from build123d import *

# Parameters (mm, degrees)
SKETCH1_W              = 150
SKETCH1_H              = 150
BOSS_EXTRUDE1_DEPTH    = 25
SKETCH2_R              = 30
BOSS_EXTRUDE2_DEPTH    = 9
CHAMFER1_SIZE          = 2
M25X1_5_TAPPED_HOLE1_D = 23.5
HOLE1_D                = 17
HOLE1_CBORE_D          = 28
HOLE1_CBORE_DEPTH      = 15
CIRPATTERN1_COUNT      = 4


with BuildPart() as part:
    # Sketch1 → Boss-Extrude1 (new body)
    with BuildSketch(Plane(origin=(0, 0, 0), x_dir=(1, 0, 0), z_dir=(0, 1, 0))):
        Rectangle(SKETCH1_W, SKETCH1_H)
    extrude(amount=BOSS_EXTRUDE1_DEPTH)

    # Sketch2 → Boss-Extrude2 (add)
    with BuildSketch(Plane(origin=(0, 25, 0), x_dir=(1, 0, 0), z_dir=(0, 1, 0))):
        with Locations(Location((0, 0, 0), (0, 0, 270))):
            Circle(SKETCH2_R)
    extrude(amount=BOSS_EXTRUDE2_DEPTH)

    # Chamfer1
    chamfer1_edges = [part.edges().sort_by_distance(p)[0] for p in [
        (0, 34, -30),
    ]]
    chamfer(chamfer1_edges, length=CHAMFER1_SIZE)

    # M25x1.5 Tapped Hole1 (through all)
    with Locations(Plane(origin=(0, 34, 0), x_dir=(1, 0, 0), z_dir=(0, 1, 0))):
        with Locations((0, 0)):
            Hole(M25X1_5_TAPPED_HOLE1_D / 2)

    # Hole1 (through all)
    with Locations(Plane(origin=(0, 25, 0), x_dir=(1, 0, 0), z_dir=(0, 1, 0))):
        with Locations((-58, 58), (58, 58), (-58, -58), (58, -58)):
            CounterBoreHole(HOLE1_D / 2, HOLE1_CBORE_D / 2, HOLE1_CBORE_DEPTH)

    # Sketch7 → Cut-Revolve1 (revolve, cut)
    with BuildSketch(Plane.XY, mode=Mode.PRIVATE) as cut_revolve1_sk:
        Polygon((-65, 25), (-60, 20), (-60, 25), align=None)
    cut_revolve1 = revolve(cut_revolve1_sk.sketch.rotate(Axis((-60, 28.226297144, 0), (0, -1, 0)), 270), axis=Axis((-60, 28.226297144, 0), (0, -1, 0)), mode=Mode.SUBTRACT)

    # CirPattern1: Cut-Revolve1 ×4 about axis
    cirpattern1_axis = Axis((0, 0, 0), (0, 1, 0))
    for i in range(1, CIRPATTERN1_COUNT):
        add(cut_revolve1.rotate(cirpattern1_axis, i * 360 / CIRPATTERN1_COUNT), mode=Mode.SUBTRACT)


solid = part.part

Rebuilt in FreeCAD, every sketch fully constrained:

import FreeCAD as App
import Part
import Sketcher

V = App.Vector


def edges_at(feature, points):
    """Names of the edges that pass closest to the given points."""
    edges = feature.Shape.Edges
    near = lambda p: min(range(len(edges)), key=lambda i: edges[i].distToShape(Part.Vertex(*p))[0])
    return sorted({f"Edge{near(p) + 1}" for p in points})

doc = App.newDocument("Part")
params = doc.addObject("Spreadsheet::Sheet", "Params")
for row, (alias, value) in enumerate([
    ("sketch1_width", "150 mm"),
    ("pad1_length", "25 mm"),
    ("sketch2_diameter", "60 mm"),
    ("pad2_length", "9 mm"),
    ("chamfer_size", "2 mm"),
    ("sketch3_diameter", "23.5 mm"),
    ("hole_diameter", "23.5 mm"),
    ("sketch4_diameter", "17 mm"),
    ("hole2_diameter", "17 mm"),
    ("hole2_cbore_diameter", "28 mm"),
    ("hole2_cbore_depth", "15 mm"),
    ("sketch5_width", "5 mm"),
    ("groove_angle", "360 deg"),
], start=1):
    params.set(f"A{row}", alias)
    params.set(f"B{row}", "=" + value)
    params.setAlias(f"B{row}", alias)

body = doc.addObject("PartDesign::Body", "Body")

sketch1 = body.newObject("Sketcher::SketchObject", "Sketch")
sketch1.AttachmentSupport = (doc.getObject("XZ_Plane"), [""])
sketch1.MapMode = "FlatFace"
sketch1.addGeometry([
    Part.LineSegment(V(-75, -75, 0), V(-75, 75, 0)),
    Part.LineSegment(V(-75, 75, 0), V(75, 75, 0)),
    Part.LineSegment(V(75, 75, 0), V(75, -75, 0)),
    Part.LineSegment(V(75, -75, 0), V(-75, -75, 0)),
], False)
sketch1.addConstraint([
    Sketcher.Constraint("Coincident", 0, 2, 1, 1),
    Sketcher.Constraint("Coincident", 1, 2, 2, 1),
    Sketcher.Constraint("Coincident", 2, 2, 3, 1),
    Sketcher.Constraint("Coincident", 3, 2, 0, 1),
    Sketcher.Constraint("Vertical", 0),
    Sketcher.Constraint("Horizontal", 1),
    Sketcher.Constraint("Vertical", 2),
    Sketcher.Constraint("Horizontal", 3),
    Sketcher.Constraint("Symmetric", 0, 2, 2, 2, -1, 1),
    Sketcher.Constraint("Equal", 3, 0),
    Sketcher.Constraint("DistanceX", 1, 1, 1, 2, 150.0),
])
sketch1.setExpression("Constraints[10]", "Params.sketch1_width")
pad1 = body.newObject("PartDesign::Pad", "Pad")
pad1.Profile = sketch1
pad1.setExpression("Length", "Params.pad1_length")
pad1.Reversed = True

sketch2 = body.newObject("Sketcher::SketchObject", "Sketch001")
sketch2.AttachmentSupport = (doc.getObject("XZ_Plane"), [""])
sketch2.MapMode = "FlatFace"
sketch2.AttachmentOffset = App.Placement(V(0, 0, -25), App.Rotation())
sketch2.addGeometry(Part.Circle(V(0, 0, 0), V(0, 0, 1), 30), False)
sketch2.addConstraint([
    Sketcher.Constraint("Coincident", 0, 3, -1, 1),
    Sketcher.Constraint("Diameter", 0, 60.0),
])
sketch2.setExpression("Constraints[1]", "Params.sketch2_diameter")
pad2 = body.newObject("PartDesign::Pad", "Pad001")
pad2.Profile = sketch2
pad2.setExpression("Length", "Params.pad2_length")
pad2.Reversed = True
doc.recompute()

chamfer = body.newObject("PartDesign::Chamfer", "Chamfer")
chamfer.Base = (pad2, edges_at(pad2, [(0, 34, -30)]))
chamfer.setExpression("Size", "Params.chamfer_size")

sketch3 = body.newObject("Sketcher::SketchObject", "Sketch002")
sketch3.AttachmentSupport = (doc.getObject("XZ_Plane"), [""])
sketch3.MapMode = "FlatFace"
sketch3.AttachmentOffset = App.Placement(V(0, 0, -34), App.Rotation())
sketch3.addGeometry(Part.Circle(V(0, 0, 0), V(0, 0, 1), 11.75), False)
sketch3.addConstraint([
    Sketcher.Constraint("Coincident", 0, 3, -1, 1),
    Sketcher.Constraint("Diameter", 0, 23.5),
])
sketch3.setExpression("Constraints[1]", "Params.sketch3_diameter")
doc.recompute()
hole = body.newObject("PartDesign::Hole", "Hole")
hole.Profile = sketch3
hole.ThreadType = "None"
hole.setExpression("Diameter", "Params.hole_diameter")
hole.DepthType = "ThroughAll"
hole.Reversed = True

sketch4 = body.newObject("Sketcher::SketchObject", "Sketch003")
sketch4.AttachmentSupport = (doc.getObject("XZ_Plane"), [""])
sketch4.MapMode = "FlatFace"
sketch4.AttachmentOffset = App.Placement(V(0, 0, -25), App.Rotation())
sketch4.addGeometry([
    Part.Circle(V(-58, -58, 0), V(0, 0, 1), 8.5),
    Part.Circle(V(58, -58, 0), V(0, 0, 1), 8.5),
    Part.Circle(V(-58, 58, 0), V(0, 0, 1), 8.5),
    Part.Circle(V(58, 58, 0), V(0, 0, 1), 8.5),
], False)
sketch4.addConstraint([
    Sketcher.Constraint("Equal", 0, 1),
    Sketcher.Constraint("Equal", 1, 2),
    Sketcher.Constraint("Equal", 2, 3),
    Sketcher.Constraint("Symmetric", 1, 3, 2, 3, -1, 1),
    Sketcher.Constraint("Symmetric", 0, 3, 3, 3, -1, 1),
    Sketcher.Constraint("Symmetric", 0, 3, 1, 3, -2),
    Sketcher.Constraint("Diameter", 0, 17.0),
    Sketcher.Constraint("DistanceX", 0, 3, -1, 1, 58.0),
    Sketcher.Constraint("DistanceY", 0, 3, -1, 1, 58.0),
])
sketch4.setExpression("Constraints[6]", "Params.sketch4_diameter")
doc.recompute()
hole2 = body.newObject("PartDesign::Hole", "Hole001")
hole2.Profile = sketch4
hole2.ThreadType = "None"
hole2.setExpression("Diameter", "Params.hole2_diameter")
hole2.DepthType = "ThroughAll"
hole2.HoleCutType = "Counterbore"
hole2.setExpression("HoleCutDiameter", "Params.hole2_cbore_diameter")
hole2.setExpression("HoleCutDepth", "Params.hole2_cbore_depth")
hole2.Reversed = True

sketch5 = body.newObject("Sketcher::SketchObject", "Sketch004")
sketch5.AttachmentSupport = (doc.getObject("XY_Plane"), [""])
sketch5.MapMode = "FlatFace"
sketch5.addGeometry([
    Part.LineSegment(V(-65, 25, 0), V(-60, 20, 0)),
    Part.LineSegment(V(-60, 20, 0), V(-60, 25, 0)),
    Part.LineSegment(V(-60, 25, 0), V(-65, 25, 0)),
], False)
sketch5.addGeometry(Part.LineSegment(V(-60, 25, 0), V(-60, 20, 0)), True)
sketch5.addConstraint([
    Sketcher.Constraint("Coincident", 0, 2, 1, 1),
    Sketcher.Constraint("Coincident", 1, 2, 2, 1),
    Sketcher.Constraint("Coincident", 2, 2, 0, 1),
    Sketcher.Constraint("Vertical", 1),
    Sketcher.Constraint("Horizontal", 2),
    Sketcher.Constraint("Vertical", 3),
    Sketcher.Constraint("Coincident", 3, 1, 1, 2),
    Sketcher.Constraint("Equal", 2, 1),
    Sketcher.Constraint("Equal", 1, 3),
    Sketcher.Constraint("DistanceX", 2, 2, 2, 1, 5.0),
    Sketcher.Constraint("DistanceX", 0, 2, -1, 1, 60.0),
    Sketcher.Constraint("DistanceY", -1, 1, 0, 2, 20.0),
])
sketch5.setExpression("Constraints[9]", "Params.sketch5_width")
groove = body.newObject("PartDesign::Groove", "Groove")
groove.Profile = sketch5
groove.ReferenceAxis = (sketch5, ["Axis0"])
groove.setExpression("Angle", "Params.groove_angle")
doc.recompute()

polarpattern = body.newObject("PartDesign::PolarPattern", "PolarPattern")
polarpattern.Originals = [groove]
polarpattern.Axis = (doc.getObject("Y_Axis"), [""])
polarpattern.Angle = 360
polarpattern.Occurrences = 4
body.Tip = polarpattern

doc.recompute()
